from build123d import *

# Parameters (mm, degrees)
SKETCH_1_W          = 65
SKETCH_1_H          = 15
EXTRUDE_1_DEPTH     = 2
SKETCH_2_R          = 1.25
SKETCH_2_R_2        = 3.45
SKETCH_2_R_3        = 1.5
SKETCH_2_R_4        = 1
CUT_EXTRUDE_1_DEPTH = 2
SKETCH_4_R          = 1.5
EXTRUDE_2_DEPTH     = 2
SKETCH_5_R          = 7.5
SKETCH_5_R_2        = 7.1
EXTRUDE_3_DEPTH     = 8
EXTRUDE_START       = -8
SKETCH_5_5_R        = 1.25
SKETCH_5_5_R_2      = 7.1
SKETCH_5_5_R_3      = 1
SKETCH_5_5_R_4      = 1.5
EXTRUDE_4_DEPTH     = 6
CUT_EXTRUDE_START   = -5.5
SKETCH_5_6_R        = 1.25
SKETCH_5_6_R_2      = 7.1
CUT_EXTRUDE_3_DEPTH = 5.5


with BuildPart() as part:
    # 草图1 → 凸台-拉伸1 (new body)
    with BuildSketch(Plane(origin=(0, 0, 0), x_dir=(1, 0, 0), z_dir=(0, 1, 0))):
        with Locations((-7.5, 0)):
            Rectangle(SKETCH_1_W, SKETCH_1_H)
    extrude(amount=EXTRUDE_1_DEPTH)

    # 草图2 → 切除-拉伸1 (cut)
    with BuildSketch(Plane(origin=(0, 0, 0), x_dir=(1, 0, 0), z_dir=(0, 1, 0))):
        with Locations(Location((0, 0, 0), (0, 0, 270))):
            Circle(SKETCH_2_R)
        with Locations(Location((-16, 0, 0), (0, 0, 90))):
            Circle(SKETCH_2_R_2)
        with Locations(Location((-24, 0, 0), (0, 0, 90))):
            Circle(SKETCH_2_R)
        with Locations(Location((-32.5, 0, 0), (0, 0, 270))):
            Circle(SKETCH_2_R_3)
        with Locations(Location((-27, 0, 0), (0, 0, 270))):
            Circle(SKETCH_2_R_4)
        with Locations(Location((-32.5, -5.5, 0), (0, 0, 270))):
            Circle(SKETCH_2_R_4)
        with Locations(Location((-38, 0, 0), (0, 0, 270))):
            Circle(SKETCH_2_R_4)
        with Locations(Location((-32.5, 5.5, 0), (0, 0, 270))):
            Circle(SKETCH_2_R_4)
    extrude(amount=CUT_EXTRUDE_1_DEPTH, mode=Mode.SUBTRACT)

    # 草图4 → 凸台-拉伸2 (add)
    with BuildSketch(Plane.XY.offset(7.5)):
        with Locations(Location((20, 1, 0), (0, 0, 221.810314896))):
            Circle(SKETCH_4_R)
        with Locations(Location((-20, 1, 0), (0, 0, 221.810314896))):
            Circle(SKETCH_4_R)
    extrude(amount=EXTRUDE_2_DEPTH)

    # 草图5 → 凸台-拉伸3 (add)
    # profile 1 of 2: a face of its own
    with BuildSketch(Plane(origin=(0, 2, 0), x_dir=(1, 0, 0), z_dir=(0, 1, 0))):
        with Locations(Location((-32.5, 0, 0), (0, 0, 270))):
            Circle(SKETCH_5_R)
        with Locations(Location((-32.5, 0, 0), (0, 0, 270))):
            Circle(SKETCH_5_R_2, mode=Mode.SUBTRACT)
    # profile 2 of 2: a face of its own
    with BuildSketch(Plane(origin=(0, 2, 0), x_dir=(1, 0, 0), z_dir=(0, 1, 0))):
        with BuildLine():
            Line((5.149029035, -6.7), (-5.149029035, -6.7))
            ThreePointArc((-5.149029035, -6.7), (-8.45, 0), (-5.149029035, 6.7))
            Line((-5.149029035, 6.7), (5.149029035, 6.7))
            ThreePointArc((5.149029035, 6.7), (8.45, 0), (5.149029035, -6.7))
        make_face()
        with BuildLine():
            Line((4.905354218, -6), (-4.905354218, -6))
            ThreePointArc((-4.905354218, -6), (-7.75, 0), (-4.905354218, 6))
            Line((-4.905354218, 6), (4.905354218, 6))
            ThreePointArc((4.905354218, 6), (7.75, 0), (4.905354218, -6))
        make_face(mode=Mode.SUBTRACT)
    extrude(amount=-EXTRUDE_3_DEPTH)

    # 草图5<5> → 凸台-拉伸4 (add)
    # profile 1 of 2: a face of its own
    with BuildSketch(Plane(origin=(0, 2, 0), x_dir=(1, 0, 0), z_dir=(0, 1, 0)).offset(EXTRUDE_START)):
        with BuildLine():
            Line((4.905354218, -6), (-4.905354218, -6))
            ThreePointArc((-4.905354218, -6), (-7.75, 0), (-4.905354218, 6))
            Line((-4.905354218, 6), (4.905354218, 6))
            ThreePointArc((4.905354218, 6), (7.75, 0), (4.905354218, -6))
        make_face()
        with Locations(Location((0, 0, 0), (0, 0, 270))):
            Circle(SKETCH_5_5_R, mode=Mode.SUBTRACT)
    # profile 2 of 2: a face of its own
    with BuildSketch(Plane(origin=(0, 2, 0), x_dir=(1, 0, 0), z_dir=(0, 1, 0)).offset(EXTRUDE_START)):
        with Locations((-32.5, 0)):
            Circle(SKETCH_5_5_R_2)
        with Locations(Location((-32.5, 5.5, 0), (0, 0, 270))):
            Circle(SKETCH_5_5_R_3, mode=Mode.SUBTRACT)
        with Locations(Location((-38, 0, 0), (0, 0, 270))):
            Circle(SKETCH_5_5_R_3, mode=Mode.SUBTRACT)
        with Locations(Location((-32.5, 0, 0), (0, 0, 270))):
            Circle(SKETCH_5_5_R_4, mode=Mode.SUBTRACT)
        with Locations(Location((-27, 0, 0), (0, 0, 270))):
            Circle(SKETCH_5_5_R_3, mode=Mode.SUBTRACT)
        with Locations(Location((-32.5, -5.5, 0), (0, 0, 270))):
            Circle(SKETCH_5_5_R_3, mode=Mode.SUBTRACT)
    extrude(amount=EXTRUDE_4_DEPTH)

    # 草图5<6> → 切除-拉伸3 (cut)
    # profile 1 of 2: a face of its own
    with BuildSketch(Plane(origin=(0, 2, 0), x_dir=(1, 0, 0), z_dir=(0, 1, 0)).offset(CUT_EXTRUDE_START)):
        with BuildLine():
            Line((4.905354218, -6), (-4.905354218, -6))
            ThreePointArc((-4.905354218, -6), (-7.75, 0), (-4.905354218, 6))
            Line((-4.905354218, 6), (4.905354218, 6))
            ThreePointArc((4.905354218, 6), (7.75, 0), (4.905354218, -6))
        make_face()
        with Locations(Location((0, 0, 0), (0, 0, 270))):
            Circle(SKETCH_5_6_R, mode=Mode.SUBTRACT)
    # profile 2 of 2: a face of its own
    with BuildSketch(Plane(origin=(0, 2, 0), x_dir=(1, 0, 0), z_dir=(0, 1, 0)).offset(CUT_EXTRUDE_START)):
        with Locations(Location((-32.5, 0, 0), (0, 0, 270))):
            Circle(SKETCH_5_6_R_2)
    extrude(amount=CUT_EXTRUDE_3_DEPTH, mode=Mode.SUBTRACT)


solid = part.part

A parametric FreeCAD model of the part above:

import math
import FreeCAD as App
import Part
import Sketcher

V = App.Vector

doc = App.newDocument("Part")
body = doc.addObject("PartDesign::Body", "Body")

# Sketch on XZ plane
sketch1 = body.newObject("Sketcher::SketchObject", "Sketch")
sketch1.AttachmentSupport = (doc.getObject("XZ_Plane"), [""])
sketch1.MapMode = "FlatFace"
sketch1.addGeometry(Part.LineSegment(V(-40, -7.5, 0), V(-40, 7.5, 0)), False)
sketch1.addGeometry(Part.LineSegment(V(-40, 7.5, 0), V(25, 7.5, 0)), False)
sketch1.addGeometry(Part.LineSegment(V(25, 7.5, 0), V(25, -7.5, 0)), False)
sketch1.addGeometry(Part.LineSegment(V(25, -7.5, 0), V(-40, -7.5, 0)), False)
sketch1.addConstraint(Sketcher.Constraint("Coincident", 0, 2, 1, 1))
sketch1.addConstraint(Sketcher.Constraint("Coincident", 1, 2, 2, 1))
sketch1.addConstraint(Sketcher.Constraint("Coincident", 2, 2, 3, 1))
sketch1.addConstraint(Sketcher.Constraint("Coincident", 3, 2, 0, 1))
sketch1.addConstraint(Sketcher.Constraint("Vertical", 0))
sketch1.addConstraint(Sketcher.Constraint("Horizontal", 1))
sketch1.addConstraint(Sketcher.Constraint("Vertical", 2))
sketch1.addConstraint(Sketcher.Constraint("Horizontal", 3))
sketch1.addConstraint(Sketcher.Constraint("DistanceX", 1, 1, 1, 2, 65.0))
sketch1.addConstraint(Sketcher.Constraint("DistanceY", 0, 1, 0, 2, 15.0))
sketch1.addConstraint(Sketcher.Constraint("DistanceX", 0, 2, -1, 1, 40.0))
sketch1.addConstraint(Sketcher.Constraint("DistanceY", -1, 1, 0, 2, 7.5))
pad1 = body.newObject("PartDesign::Pad", "Pad")
pad1.Profile = sketch1
pad1.Length = 2
pad1.Reversed = True

# Sketch on XZ plane
sketch2 = body.newObject("Sketcher::SketchObject", "Sketch001")
sketch2.AttachmentSupport = (doc.getObject("XZ_Plane"), [""])
sketch2.MapMode = "FlatFace"
sketch2.addGeometry(Part.Circle(V(0, 0, 0), V(0, 0, 1), 1.25), False)
sketch2.addGeometry(Part.Circle(V(-16, 0, 0), V(0, 0, 1), 3.45), False)
sketch2.addGeometry(Part.Circle(V(-24, 0, 0), V(0, 0, 1), 1.25), False)
sketch2.addGeometry(Part.Circle(V(-32.5, 0, 0), V(0, 0, 1), 1.5), False)
sketch2.addGeometry(Part.Circle(V(-27, 0, 0), V(0, 0, 1), 1), False)
sketch2.addGeometry(Part.Circle(V(-32.5, 5.5, 0), V(0, 0, 1), 1), False)
sketch2.addGeometry(Part.Circle(V(-38, 0, 0), V(0, 0, 1), 1), False)
sketch2.addGeometry(Part.Circle(V(-32.5, -5.5, 0), V(0, 0, 1), 1), False)
sketch2.addConstraint(Sketcher.Constraint("Coincident", 0, 3, -1, 1))
sketch2.addConstraint(Sketcher.Constraint("Equal", 0, 2))
sketch2.addConstraint(Sketcher.Constraint("Equal", 4, 5))
sketch2.addConstraint(Sketcher.Constraint("Equal", 5, 6))
sketch2.addConstraint(Sketcher.Constraint("Equal", 6, 7))
sketch2.addConstraint(Sketcher.Constraint("Symmetric", 5, 3, 7, 3, -1))
sketch2.addConstraint(Sketcher.Constraint("PointOnObject", 1, 3, -1))
sketch2.addConstraint(Sketcher.Constraint("PointOnObject", 2, 3, -1))
sketch2.addConstraint(Sketcher.Constraint("PointOnObject", 3, 3, -1))
sketch2.addConstraint(Sketcher.Constraint("PointOnObject", 4, 3, -1))
sketch2.addConstraint(Sketcher.Constraint("PointOnObject", 6, 3, -1))
sketch2.addConstraint(Sketcher.Constraint("Vertical", 3, 3, 5, 3))
sketch2.addConstraint(Sketcher.Constraint("Diameter", 3, 3.0))
sketch2.addConstraint(Sketcher.Constraint("Diameter", 4, 2.0))
sketch2.addConstraint(Sketcher.Constraint("Diameter", 0, 2.5))
sketch2.addConstraint(Sketcher.Constraint("Diameter", 1, 6.9))
sketch2.addConstraint(Sketcher.Constraint("DistanceX", 1, 3, -1, 1, 16.0))
sketch2.addConstraint(Sketcher.Constraint("DistanceX", 2, 3, -1, 1, 24.0))
sketch2.addConstraint(Sketcher.Constraint("DistanceX", 4, 3, -1, 1, 27.0))
sketch2.addConstraint(Sketcher.Constraint("DistanceX", 6, 3, -1, 1, 38.0))
sketch2.addConstraint(Sketcher.Constraint("DistanceY", 7, 3, 5, 3, 11.0))
sketch2.addConstraint(Sketcher.Constraint("DistanceX", 3, 3, -1, 1, 32.5))
pocket1 = body.newObject("PartDesign::Pocket", "Pocket")
pocket1.Profile = sketch2
pocket1.Length = 2

# Sketch on XY plane
sketch3 = body.newObject("Sketcher::SketchObject", "Sketch002")
sketch3.AttachmentSupport = (doc.getObject("XY_Plane"), [""])
sketch3.MapMode = "FlatFace"
sketch3.AttachmentOffset = App.Placement(V(0, 0, 7.5), App.Rotation())
sketch3.addGeometry(Part.Circle(V(20, 1, 0), V(0, 0, 1), 1.5), False)
sketch3.addGeometry(Part.Circle(V(-20, 1, 0), V(0, 0, 1), 1.5), False)
sketch3.addConstraint(Sketcher.Constraint("Equal", 0, 1))
sketch3.addConstraint(Sketcher.Constraint("Symmetric", 0, 3, 1, 3, -2))
sketch3.addConstraint(Sketcher.Constraint("Diameter", 0, 3.0))
sketch3.addConstraint(Sketcher.Constraint("DistanceX", -1, 1, 0, 3, 20.0))
sketch3.addConstraint(Sketcher.Constraint("DistanceY", -1, 1, 0, 3, 1.0))
pad2 = body.newObject("PartDesign::Pad", "Pad001")
pad2.Profile = sketch3
pad2.Length = 2

# Sketch on XZ plane
sketch4 = body.newObject("Sketcher::SketchObject", "Sketch003")
sketch4.AttachmentSupport = (doc.getObject("XZ_Plane"), [""])
sketch4.MapMode = "FlatFace"
sketch4.AttachmentOffset = App.Placement(V(0, 0, -2), App.Rotation())
sketch4.addGeometry(Part.Circle(V(-32.5, 0, 0), V(0, 0, 1), 7.5), False)
sketch4.addGeometry(Part.Circle(V(-32.5, 0, 0), V(0, 0, 1), 7.1), False)
sketch4.addGeometry(Part.LineSegment(V(-5.149029, 6.7, 0), V(5.149029, 6.7, 0)), False)
sketch4.addGeometry(Part.ArcOfCircle(Part.Circle(V(0, 0, 0), V(0, 0, 1), 8.45), math.radians(-52.457297), math.radians(52.457297)), False)
sketch4.addGeometry(Part.LineSegment(V(5.149029, -6.7, 0), V(-5.149029, -6.7, 0)), False)
sketch4.addGeometry(Part.ArcOfCircle(Part.Circle(V(0, 0, 0), V(0, 0, 1), 8.45), math.radians(127.542703), math.radians(232.457297)), False)
sketch4.addGeometry(Part.LineSegment(V(4.905354, 6, 0), V(-4.905354, 6, 0)), False)
sketch4.addGeometry(Part.ArcOfCircle(Part.Circle(V(0, 0, 0), V(0, 0, 1), 7.75), math.radians(129.268026), math.radians(230.731974)), False)
sketch4.addGeometry(Part.LineSegment(V(-4.905354, -6, 0), V(4.905354, -6, 0)), False)
sketch4.addGeometry(Part.ArcOfCircle(Part.Circle(V(0, 0, 0), V(0, 0, 1), 7.75), math.radians(-50.731974), math.radians(50.731974)), False)
sketch4.addConstraint(Sketcher.Constraint("Coincident", 2, 2, 3, 2))
sketch4.addConstraint(Sketcher.Constraint("Coincident", 3, 1, 4, 1))
sketch4.addConstraint(Sketcher.Constraint("Coincident", 4, 2, 5, 2))
sketch4.addConstraint(Sketcher.Constraint("Coincident", 5, 1, 2, 1))
sketch4.addConstraint(Sketcher.Constraint("Coincident", 6, 2, 7, 1))
sketch4.addConstraint(Sketcher.Constraint("Coincident", 7, 2, 8, 1))
sketch4.addConstraint(Sketcher.Constraint("Coincident", 8, 2, 9, 1))
sketch4.addConstraint(Sketcher.Constraint("Coincident", 9, 2, 6, 1))
sketch4.addConstraint(Sketcher.Constraint("Horizontal", 2))
sketch4.addConstraint(Sketcher.Constraint("Horizontal", 4))
sketch4.addConstraint(Sketcher.Constraint("Horizontal", 6))
sketch4.addConstraint(Sketcher.Constraint("Horizontal", 8))
sketch4.addConstraint(Sketcher.Constraint("Coincident", 3, 3, -1, 1))
sketch4.addConstraint(Sketcher.Constraint("Coincident", 5, 3, -1, 1))
sketch4.addConstraint(Sketcher.Constraint("Coincident", 7, 3, -1, 1))
sketch4.addConstraint(Sketcher.Constraint("Coincident", 9, 3, -1, 1))
sketch4.addConstraint(Sketcher.Constraint("Coincident", 1, 3, 0, 3))
sketch4.addConstraint(Sketcher.Constraint("Equal", 3, 5))
sketch4.addConstraint(Sketcher.Constraint("Equal", 7, 9))
sketch4.addConstraint(Sketcher.Constraint("PointOnObject", 0, 3, -1))
sketch4.addConstraint(Sketcher.Constraint("Vertical", 2, 2, 3, 1))
sketch4.addConstraint(Sketcher.Constraint("Vertical", 6, 2, 7, 2))
sketch4.addConstraint(Sketcher.Constraint("Diameter", 0, 15.0))
sketch4.addConstraint(Sketcher.Constraint("Diameter", 1, 14.2))
sketch4.addConstraint(Sketcher.Constraint("Radius", 3, 8.45))
sketch4.addConstraint(Sketcher.Constraint("Radius", 7, 7.75))
sketch4.addConstraint(Sketcher.Constraint("DistanceY", -1, 1, 6, 2, 6.0))
sketch4.addConstraint(Sketcher.Constraint("DistanceX", 0, 3, -1, 1, 32.5))
sketch4.addConstraint(Sketcher.Constraint("DistanceY", -1, 1, 2, 2, 6.7))
pad3 = body.newObject("PartDesign::Pad", "Pad002")
pad3.Profile = sketch4
pad3.Length = 8

# Sketch on XZ plane
sketch5 = body.newObject("Sketcher::SketchObject", "Sketch004")
sketch5.AttachmentSupport = (doc.getObject("XZ_Plane"), [""])
sketch5.MapMode = "FlatFace"
sketch5.AttachmentOffset = App.Placement(V(0, 0, 6), App.Rotation())
sketch5.addGeometry(Part.LineSegment(V(-4.905354, 6, 0), V(4.905354, 6, 0)), False)
sketch5.addGeometry(Part.ArcOfCircle(Part.Circle(V(0, 0, 0), V(0, 0, 1), 7.75), math.radians(-50.731974), math.radians(50.731974)), False)
sketch5.addGeometry(Part.LineSegment(V(4.905354, -6, 0), V(-4.905354, -6, 0)), False)
sketch5.addGeometry(Part.ArcOfCircle(Part.Circle(V(0, 0, 0), V(0, 0, 1), 7.75), math.radians(129.268026), math.radians(230.731974)), False)
sketch5.addGeometry(Part.Circle(V(0, 0, 0), V(0, 0, 1), 1.25), False)
sketch5.addGeometry(Part.Circle(V(-32.5, 0, 0), V(0, 0, 1), 7.1), False)
sketch5.addGeometry(Part.Circle(V(-32.5, 5.5, 0), V(0, 0, 1), 1), False)
sketch5.addGeometry(Part.Circle(V(-38, 0, 0), V(0, 0, 1), 1), False)
sketch5.addGeometry(Part.Circle(V(-32.5, 0, 0), V(0, 0, 1), 1.5), False)
sketch5.addGeometry(Part.Circle(V(-27, 0, 0), V(0, 0, 1), 1), False)
sketch5.addGeometry(Part.Circle(V(-32.5, -5.5, 0), V(0, 0, 1), 1), False)
sketch5.addConstraint(Sketcher.Constraint("Coincident", 0, 2, 1, 2))
sketch5.addConstraint(Sketcher.Constraint("Coincident", 1, 1, 2, 1))
sketch5.addConstraint(Sketcher.Constraint("Coincident", 2, 2, 3, 2))
sketch5.addConstraint(Sketcher.Constraint("Coincident", 3, 1, 0, 1))
sketch5.addConstraint(Sketcher.Constraint("Horizontal", 0))
sketch5.addConstraint(Sketcher.Constraint("Horizontal", 2))
sketch5.addConstraint(Sketcher.Constraint("Coincident", 1, 3, -1, 1))
sketch5.addConstraint(Sketcher.Constraint("Coincident", 3, 3, -1, 1))
sketch5.addConstraint(Sketcher.Constraint("Coincident", 4, 3, -1, 1))
sketch5.addConstraint(Sketcher.Constraint("Coincident", 8, 3, 5, 3))
sketch5.addConstraint(Sketcher.Constraint("Equal", 1, 3))
sketch5.addConstraint(Sketcher.Constraint("Equal", 6, 7))
sketch5.addConstraint(Sketcher.Constraint("Equal", 7, 9))
sketch5.addConstraint(Sketcher.Constraint("Equal", 9, 10))
sketch5.addConstraint(Sketcher.Constraint("Symmetric", 6, 3, 10, 3, -1))
sketch5.addConstraint(Sketcher.Constraint("PointOnObject", 5, 3, -1))
sketch5.addConstraint(Sketcher.Constraint("PointOnObject", 7, 3, -1))
sketch5.addConstraint(Sketcher.Constraint("PointOnObject", 9, 3, -1))
sketch5.addConstraint(Sketcher.Constraint("Vertical", 5, 3, 6, 3))
sketch5.addConstraint(Sketcher.Constraint("Vertical", 0, 2, 1, 1))
sketch5.addConstraint(Sketcher.Constraint("Diameter", 6, 2.0))
sketch5.addConstraint(Sketcher.Constraint("Diameter", 8, 3.0))
sketch5.addConstraint(Sketcher.Constraint("Diameter", 4, 2.5))
sketch5.addConstraint(Sketcher.Constraint("Diameter", 5, 14.2))
sketch5.addConstraint(Sketcher.Constraint("Radius", 1, 7.75))
sketch5.addConstraint(Sketcher.Constraint("DistanceX", 7, 3, -1, 1, 38.0))
sketch5.addConstraint(Sketcher.Constraint("DistanceX", 9, 3, -1, 1, 27.0))
sketch5.addConstraint(Sketcher.Constraint("DistanceY", -1, 1, 0, 2, 6.0))
sketch5.addConstraint(Sketcher.Constraint("DistanceY", 10, 3, 6, 3, 11.0))
sketch5.addConstraint(Sketcher.Constraint("DistanceX", 5, 3, -1, 1, 32.5))
pad4 = body.newObject("PartDesign::Pad", "Pad003")
pad4.Profile = sketch5
pad4.Length = 6
pad4.Reversed = True

# Sketch on XZ plane
sketch6 = body.newObject("Sketcher::SketchObject", "Sketch005")
sketch6.AttachmentSupport = (doc.getObject("XZ_Plane"), [""])
sketch6.MapMode = "FlatFace"
sketch6.AttachmentOffset = App.Placement(V(0, 0, 3.5), App.Rotation())
sketch6.addGeometry(Part.LineSegment(V(-4.905354, 6, 0), V(4.905354, 6, 0)), False)
sketch6.addGeometry(Part.ArcOfCircle(Part.Circle(V(0, 0, 0), V(0, 0, 1), 7.75), math.radians(-50.731974), math.radians(50.731974)), False)
sketch6.addGeometry(Part.LineSegment(V(4.905354, -6, 0), V(-4.905354, -6, 0)), False)
sketch6.addGeometry(Part.ArcOfCircle(Part.Circle(V(0, 0, 0), V(0, 0, 1), 7.75), math.radians(129.268026), math.radians(230.731974)), False)
sketch6.addGeometry(Part.Circle(V(0, 0, 0), V(0, 0, 1), 1.25), False)
sketch6.addGeometry(Part.Circle(V(-32.5, 0, 0), V(0, 0, 1), 7.1), False)
sketch6.addConstraint(Sketcher.Constraint("Coincident", 0, 2, 1, 2))
sketch6.addConstraint(Sketcher.Constraint("Coincident", 1, 1, 2, 1))
sketch6.addConstraint(Sketcher.Constraint("Coincident", 2, 2, 3, 2))
sketch6.addConstraint(Sketcher.Constraint("Coincident", 3, 1, 0, 1))
sketch6.addConstraint(Sketcher.Constraint("Horizontal", 0))
sketch6.addConstraint(Sketcher.Constraint("Horizontal", 2))
sketch6.addConstraint(Sketcher.Constraint("Coincident", 1, 3, -1, 1))
sketch6.addConstraint(Sketcher.Constraint("Coincident", 3, 3, -1, 1))
sketch6.addConstraint(Sketcher.Constraint("Coincident", 4, 3, -1, 1))
sketch6.addConstraint(Sketcher.Constraint("Equal", 1, 3))
sketch6.addConstraint(Sketcher.Constraint("PointOnObject", 5, 3, -1))
sketch6.addConstraint(Sketcher.Constraint("Vertical", 0, 2, 1, 1))
sketch6.addConstraint(Sketcher.Constraint("Diameter", 4, 2.5))
sketch6.addConstraint(Sketcher.Constraint("Diameter", 5, 14.2))
sketch6.addConstraint(Sketcher.Constraint("Radius", 1, 7.75))
sketch6.addConstraint(Sketcher.Constraint("DistanceY", -1, 1, 0, 2, 6.0))
sketch6.addConstraint(Sketcher.Constraint("DistanceX", 5, 3, -1, 1, 32.5))
pocket2 = body.newObject("PartDesign::Pocket", "Pocket001")
pocket2.Profile = sketch6
pocket2.Length = 5.5

doc.recompute()
